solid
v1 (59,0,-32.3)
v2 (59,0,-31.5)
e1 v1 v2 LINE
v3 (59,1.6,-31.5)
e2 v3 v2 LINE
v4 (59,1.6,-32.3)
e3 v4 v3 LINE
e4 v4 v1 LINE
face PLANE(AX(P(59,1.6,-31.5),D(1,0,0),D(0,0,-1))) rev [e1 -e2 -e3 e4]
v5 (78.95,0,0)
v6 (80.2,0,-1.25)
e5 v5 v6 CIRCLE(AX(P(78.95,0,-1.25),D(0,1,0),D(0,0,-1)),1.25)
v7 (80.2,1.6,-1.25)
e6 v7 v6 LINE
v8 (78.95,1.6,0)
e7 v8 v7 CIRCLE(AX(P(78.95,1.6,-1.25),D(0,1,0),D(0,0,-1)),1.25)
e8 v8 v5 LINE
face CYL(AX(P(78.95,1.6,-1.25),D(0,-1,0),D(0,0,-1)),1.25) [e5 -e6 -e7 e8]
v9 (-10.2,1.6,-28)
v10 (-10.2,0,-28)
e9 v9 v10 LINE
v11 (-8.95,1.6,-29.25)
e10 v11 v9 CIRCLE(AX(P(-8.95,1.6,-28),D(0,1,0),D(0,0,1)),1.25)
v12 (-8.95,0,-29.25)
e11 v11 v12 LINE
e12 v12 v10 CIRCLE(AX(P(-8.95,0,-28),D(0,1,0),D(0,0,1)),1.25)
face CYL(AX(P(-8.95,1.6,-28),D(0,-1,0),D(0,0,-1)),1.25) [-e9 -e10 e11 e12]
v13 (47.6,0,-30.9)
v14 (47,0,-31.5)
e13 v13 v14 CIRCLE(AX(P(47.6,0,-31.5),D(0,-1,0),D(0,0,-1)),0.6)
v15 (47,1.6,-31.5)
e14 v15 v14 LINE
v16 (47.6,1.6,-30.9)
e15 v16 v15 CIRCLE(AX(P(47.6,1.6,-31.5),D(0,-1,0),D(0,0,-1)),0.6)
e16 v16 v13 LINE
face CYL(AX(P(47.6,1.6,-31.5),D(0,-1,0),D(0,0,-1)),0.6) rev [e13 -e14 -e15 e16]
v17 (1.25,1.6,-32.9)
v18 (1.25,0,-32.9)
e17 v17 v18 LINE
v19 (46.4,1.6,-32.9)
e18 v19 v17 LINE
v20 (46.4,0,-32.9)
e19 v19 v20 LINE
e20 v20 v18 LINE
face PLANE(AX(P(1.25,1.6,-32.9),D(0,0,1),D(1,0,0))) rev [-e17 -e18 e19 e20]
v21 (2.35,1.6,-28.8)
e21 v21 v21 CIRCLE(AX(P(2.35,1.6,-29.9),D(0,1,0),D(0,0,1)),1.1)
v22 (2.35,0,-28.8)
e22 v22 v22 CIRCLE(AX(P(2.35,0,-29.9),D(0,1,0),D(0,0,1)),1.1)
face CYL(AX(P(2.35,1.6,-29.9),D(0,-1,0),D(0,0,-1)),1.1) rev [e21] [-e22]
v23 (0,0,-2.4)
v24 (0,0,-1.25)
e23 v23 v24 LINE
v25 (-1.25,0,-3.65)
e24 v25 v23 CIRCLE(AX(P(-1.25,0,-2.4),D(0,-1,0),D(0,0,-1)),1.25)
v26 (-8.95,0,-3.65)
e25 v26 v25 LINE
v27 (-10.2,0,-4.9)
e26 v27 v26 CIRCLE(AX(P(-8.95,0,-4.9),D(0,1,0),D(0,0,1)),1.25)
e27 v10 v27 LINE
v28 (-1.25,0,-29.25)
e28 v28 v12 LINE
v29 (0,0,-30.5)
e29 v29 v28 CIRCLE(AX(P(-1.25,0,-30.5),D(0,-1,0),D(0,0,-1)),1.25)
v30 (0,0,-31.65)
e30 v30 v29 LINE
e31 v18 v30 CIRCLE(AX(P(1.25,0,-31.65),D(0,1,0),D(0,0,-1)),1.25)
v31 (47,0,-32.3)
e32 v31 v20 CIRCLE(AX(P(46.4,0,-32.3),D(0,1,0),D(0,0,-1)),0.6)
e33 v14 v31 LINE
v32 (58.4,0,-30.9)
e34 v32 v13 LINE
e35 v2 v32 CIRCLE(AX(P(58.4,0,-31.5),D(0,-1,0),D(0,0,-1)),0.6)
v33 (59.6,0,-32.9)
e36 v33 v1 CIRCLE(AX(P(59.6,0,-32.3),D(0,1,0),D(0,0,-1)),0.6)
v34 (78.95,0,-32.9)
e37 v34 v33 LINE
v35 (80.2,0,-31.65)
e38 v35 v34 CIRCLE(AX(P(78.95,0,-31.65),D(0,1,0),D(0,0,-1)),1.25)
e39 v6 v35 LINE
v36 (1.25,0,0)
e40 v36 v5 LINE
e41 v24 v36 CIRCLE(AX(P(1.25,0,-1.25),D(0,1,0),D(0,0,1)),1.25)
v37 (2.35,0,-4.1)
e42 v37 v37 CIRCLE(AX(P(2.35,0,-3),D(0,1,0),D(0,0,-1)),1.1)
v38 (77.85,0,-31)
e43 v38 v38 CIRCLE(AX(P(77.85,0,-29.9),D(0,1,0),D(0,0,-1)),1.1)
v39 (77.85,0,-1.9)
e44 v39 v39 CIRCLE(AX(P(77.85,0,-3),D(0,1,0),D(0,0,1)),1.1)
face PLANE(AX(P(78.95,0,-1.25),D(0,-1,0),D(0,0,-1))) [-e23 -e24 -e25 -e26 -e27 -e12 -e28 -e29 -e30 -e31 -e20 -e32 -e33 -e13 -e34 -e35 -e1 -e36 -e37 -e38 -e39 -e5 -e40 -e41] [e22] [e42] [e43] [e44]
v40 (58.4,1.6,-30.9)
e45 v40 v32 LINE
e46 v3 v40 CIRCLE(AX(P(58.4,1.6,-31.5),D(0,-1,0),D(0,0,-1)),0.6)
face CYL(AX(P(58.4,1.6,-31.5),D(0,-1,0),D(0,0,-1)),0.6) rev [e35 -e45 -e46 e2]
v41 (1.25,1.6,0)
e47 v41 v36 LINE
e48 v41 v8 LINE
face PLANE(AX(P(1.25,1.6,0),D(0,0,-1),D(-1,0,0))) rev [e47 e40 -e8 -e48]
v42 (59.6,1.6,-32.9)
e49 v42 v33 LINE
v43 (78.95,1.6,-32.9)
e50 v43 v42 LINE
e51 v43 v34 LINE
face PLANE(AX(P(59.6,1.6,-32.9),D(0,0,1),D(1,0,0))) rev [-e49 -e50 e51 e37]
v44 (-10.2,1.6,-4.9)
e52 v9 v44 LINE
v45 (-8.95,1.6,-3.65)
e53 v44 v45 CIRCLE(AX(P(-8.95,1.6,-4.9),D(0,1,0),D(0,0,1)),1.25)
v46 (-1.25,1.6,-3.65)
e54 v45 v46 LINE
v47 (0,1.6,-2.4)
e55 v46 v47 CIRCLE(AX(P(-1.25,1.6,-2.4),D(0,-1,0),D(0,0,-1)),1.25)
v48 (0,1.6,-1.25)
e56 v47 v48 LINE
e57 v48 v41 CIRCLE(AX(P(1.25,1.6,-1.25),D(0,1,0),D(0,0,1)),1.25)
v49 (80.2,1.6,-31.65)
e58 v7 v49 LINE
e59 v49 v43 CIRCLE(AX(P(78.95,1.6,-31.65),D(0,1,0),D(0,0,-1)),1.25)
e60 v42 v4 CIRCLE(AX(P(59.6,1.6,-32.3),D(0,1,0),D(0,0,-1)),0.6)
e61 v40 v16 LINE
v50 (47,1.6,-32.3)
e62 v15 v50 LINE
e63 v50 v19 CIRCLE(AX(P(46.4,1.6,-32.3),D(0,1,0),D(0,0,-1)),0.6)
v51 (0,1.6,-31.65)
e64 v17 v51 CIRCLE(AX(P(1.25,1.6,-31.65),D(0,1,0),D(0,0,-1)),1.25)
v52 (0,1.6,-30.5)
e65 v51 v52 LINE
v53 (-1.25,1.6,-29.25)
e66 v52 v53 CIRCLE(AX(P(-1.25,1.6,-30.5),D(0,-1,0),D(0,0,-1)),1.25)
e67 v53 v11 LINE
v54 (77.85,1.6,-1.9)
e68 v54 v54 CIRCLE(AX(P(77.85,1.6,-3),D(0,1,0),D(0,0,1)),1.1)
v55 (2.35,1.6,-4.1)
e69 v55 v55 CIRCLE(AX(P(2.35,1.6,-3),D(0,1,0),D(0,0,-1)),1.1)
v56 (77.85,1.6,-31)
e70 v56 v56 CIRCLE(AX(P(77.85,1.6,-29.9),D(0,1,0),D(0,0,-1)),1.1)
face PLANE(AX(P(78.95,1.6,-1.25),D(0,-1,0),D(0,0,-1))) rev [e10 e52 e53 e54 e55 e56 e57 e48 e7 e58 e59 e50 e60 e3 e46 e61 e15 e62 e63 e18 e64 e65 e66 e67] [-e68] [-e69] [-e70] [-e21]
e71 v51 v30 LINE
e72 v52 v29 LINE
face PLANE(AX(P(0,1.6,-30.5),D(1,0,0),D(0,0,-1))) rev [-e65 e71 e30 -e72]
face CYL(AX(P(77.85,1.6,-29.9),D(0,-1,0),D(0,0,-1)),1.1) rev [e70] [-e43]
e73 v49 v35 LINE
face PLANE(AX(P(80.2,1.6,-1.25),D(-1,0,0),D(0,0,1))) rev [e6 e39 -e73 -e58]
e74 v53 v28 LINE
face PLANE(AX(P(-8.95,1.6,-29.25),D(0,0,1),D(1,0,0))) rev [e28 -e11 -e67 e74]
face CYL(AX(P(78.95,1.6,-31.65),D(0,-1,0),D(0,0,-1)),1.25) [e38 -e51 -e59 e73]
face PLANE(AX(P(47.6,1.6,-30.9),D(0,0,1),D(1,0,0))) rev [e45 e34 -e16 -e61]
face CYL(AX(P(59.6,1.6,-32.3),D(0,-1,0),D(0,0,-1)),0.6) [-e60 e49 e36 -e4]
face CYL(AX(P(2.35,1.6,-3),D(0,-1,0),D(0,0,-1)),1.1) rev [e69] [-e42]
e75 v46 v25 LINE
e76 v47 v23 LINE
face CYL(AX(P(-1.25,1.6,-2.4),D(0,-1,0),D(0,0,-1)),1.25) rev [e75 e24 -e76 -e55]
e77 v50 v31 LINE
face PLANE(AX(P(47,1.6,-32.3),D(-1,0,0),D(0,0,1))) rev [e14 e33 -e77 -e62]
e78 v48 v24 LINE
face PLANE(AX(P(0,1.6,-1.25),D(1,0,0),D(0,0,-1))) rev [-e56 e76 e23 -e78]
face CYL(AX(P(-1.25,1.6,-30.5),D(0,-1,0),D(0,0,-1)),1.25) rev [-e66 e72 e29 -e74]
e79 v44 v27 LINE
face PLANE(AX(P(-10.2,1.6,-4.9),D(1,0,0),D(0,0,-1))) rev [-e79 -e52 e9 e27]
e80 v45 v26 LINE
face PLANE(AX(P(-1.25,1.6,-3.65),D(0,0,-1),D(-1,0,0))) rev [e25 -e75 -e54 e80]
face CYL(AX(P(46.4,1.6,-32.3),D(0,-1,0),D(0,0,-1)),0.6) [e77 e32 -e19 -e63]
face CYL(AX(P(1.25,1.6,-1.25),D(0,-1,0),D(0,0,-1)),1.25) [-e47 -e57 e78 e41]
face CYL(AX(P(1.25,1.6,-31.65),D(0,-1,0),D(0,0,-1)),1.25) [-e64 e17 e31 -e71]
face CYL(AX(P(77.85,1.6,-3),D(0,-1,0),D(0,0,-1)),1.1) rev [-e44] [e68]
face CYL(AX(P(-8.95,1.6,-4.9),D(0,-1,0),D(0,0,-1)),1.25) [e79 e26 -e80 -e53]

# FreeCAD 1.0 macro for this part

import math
import FreeCAD as App
import Part
import Sketcher
Q = App.Units.Quantity

doc = App.newDocument("Part")
body = doc.addObject("PartDesign::Body", "Body")

sketch1 = body.newObject("Sketcher::SketchObject", "Sketch")
sketch1.AttachmentSupport = (doc.getObject("XZ_Plane"), [""])
sketch1.MapMode = "FlatFace"
sketch1.addGeometry(Part.ArcOfCircle(Part.Circle(App.Vector(1.25, -1.25, 0), App.Vector(0, 0, 1), 1.25), math.radians(90), math.radians(180)), False)
sketch1.addGeometry(Part.LineSegment(App.Vector(1.25, 0, 0), App.Vector(78.95, 0, 0)), False)
sketch1.addGeometry(Part.ArcOfCircle(Part.Circle(App.Vector(78.95, -1.25, 0), App.Vector(0, 0, 1), 1.25), math.radians(0), math.radians(90)), False)
sketch1.addGeometry(Part.LineSegment(App.Vector(80.2, -1.25, 0), App.Vector(80.2, -31.65, 0)), False)
sketch1.addGeometry(Part.ArcOfCircle(Part.Circle(App.Vector(78.95, -31.65, 0), App.Vector(0, 0, 1), 1.25), math.radians(-90), math.radians(0)), False)
sketch1.addGeometry(Part.LineSegment(App.Vector(78.95, -32.9, 0), App.Vector(59.6, -32.9, 0)), False)
sketch1.addGeometry(Part.ArcOfCircle(Part.Circle(App.Vector(59.6, -32.3, 0), App.Vector(0, 0, 1), 0.6), math.radians(180), math.radians(270)), False)
sketch1.addGeometry(Part.LineSegment(App.Vector(59, -32.3, 0), App.Vector(59, -31.5, 0)), False)
sketch1.addGeometry(Part.ArcOfCircle(Part.Circle(App.Vector(58.4, -31.5, 0), App.Vector(0, 0, 1), 0.6), math.radians(0), math.radians(90)), False)
sketch1.addGeometry(Part.LineSegment(App.Vector(58.4, -30.9, 0), App.Vector(47.6, -30.9, 0)), False)
sketch1.addGeometry(Part.ArcOfCircle(Part.Circle(App.Vector(47.6, -31.5, 0), App.Vector(0, 0, 1), 0.6), math.radians(90), math.radians(180)), False)
sketch1.addGeometry(Part.LineSegment(App.Vector(47, -31.5, 0), App.Vector(47, -32.3, 0)), False)
sketch1.addGeometry(Part.ArcOfCircle(Part.Circle(App.Vector(46.4, -32.3, 0), App.Vector(0, 0, 1), 0.6), math.radians(-90), math.radians(0)), False)
sketch1.addGeometry(Part.LineSegment(App.Vector(46.4, -32.9, 0), App.Vector(1.25, -32.9, 0)), False)
sketch1.addGeometry(Part.ArcOfCircle(Part.Circle(App.Vector(1.25, -31.65, 0), App.Vector(0, 0, 1), 1.25), math.radians(-180), math.radians(-90)), False)
sketch1.addGeometry(Part.LineSegment(App.Vector(0, -31.65, 0), App.Vector(0, -30.5, 0)), False)
sketch1.addGeometry(Part.ArcOfCircle(Part.Circle(App.Vector(-1.25, -30.5, 0), App.Vector(0, 0, 1), 1.25), math.radians(0), math.radians(90)), False)
sketch1.addGeometry(Part.LineSegment(App.Vector(-1.25, -29.25, 0), App.Vector(-8.95, -29.25, 0)), False)
sketch1.addGeometry(Part.ArcOfCircle(Part.Circle(App.Vector(-8.95, -28, 0), App.Vector(0, 0, 1), 1.25), math.radians(-180), math.radians(-90)), False)
sketch1.addGeometry(Part.LineSegment(App.Vector(-10.2, -28, 0), App.Vector(-10.2, -4.9, 0)), False)
sketch1.addGeometry(Part.ArcOfCircle(Part.Circle(App.Vector(-8.95, -4.9, 0), App.Vector(0, 0, 1), 1.25), math.radians(90), math.radians(180)), False)
sketch1.addGeometry(Part.LineSegment(App.Vector(-8.95, -3.65, 0), App.Vector(-1.25, -3.65, 0)), False)
sketch1.addGeometry(Part.ArcOfCircle(Part.Circle(App.Vector(-1.25, -2.4, 0), App.Vector(0, 0, 1), 1.25), math.radians(-90), math.radians(0)), False)
sketch1.addGeometry(Part.LineSegment(App.Vector(0, -2.4, 0), App.Vector(0, -1.25, 0)), False)
sketch1.addGeometry(Part.Circle(App.Vector(2.35, -3, 0), App.Vector(0, 0, 1), 1.1), False)
sketch1.addGeometry(Part.Circle(App.Vector(77.85, -3, 0), App.Vector(0, 0, 1), 1.1), False)
sketch1.addGeometry(Part.Circle(App.Vector(2.35, -29.9, 0), App.Vector(0, 0, 1), 1.1), False)
sketch1.addGeometry(Part.Circle(App.Vector(77.85, -29.9, 0), App.Vector(0, 0, 1), 1.1), False)
sketch1.addConstraint(Sketcher.Constraint("Tangent", 0, 1, 1, 1))
sketch1.addConstraint(Sketcher.Constraint("Tangent", 1, 2, 2, 2))
sketch1.addConstraint(Sketcher.Constraint("Tangent", 2, 1, 3, 1))
sketch1.addConstraint(Sketcher.Constraint("Tangent", 3, 2, 4, 2))
sketch1.addConstraint(Sketcher.Constraint("Tangent", 4, 1, 5, 1))
sketch1.addConstraint(Sketcher.Constraint("Tangent", 5, 2, 6, 2))
sketch1.addConstraint(Sketcher.Constraint("Tangent", 6, 1, 7, 1))
sketch1.addConstraint(Sketcher.Constraint("Tangent", 7, 2, 8, 1))
sketch1.addConstraint(Sketcher.Constraint("Tangent", 8, 2, 9, 1))
sketch1.addConstraint(Sketcher.Constraint("Tangent", 9, 2, 10, 1))
sketch1.addConstraint(Sketcher.Constraint("Tangent", 10, 2, 11, 1))
sketch1.addConstraint(Sketcher.Constraint("Tangent", 11, 2, 12, 2))
sketch1.addConstraint(Sketcher.Constraint("Tangent", 12, 1, 13, 1))
sketch1.addConstraint(Sketcher.Constraint("Tangent", 13, 2, 14, 2))
sketch1.addConstraint(Sketcher.Constraint("Tangent", 14, 1, 15, 1))
sketch1.addConstraint(Sketcher.Constraint("Tangent", 15, 2, 16, 1))
sketch1.addConstraint(Sketcher.Constraint("Tangent", 16, 2, 17, 1))
sketch1.addConstraint(Sketcher.Constraint("Tangent", 17, 2, 18, 2))
sketch1.addConstraint(Sketcher.Constraint("Tangent", 18, 1, 19, 1))
sketch1.addConstraint(Sketcher.Constraint("Tangent", 19, 2, 20, 2))
sketch1.addConstraint(Sketcher.Constraint("Tangent", 20, 1, 21, 1))
sketch1.addConstraint(Sketcher.Constraint("Tangent", 21, 2, 22, 1))
sketch1.addConstraint(Sketcher.Constraint("Tangent", 22, 2, 23, 1))
sketch1.addConstraint(Sketcher.Constraint("Tangent", 23, 2, 0, 2))
sketch1.addConstraint(Sketcher.Constraint("Horizontal", 1))
sketch1.addConstraint(Sketcher.Constraint("Vertical", 3))
sketch1.addConstraint(Sketcher.Constraint("Horizontal", 5))
sketch1.addConstraint(Sketcher.Constraint("Vertical", 7))
sketch1.addConstraint(Sketcher.Constraint("Horizontal", 9))
sketch1.addConstraint(Sketcher.Constraint("Vertical", 11))
sketch1.addConstraint(Sketcher.Constraint("Horizontal", 13))
sketch1.addConstraint(Sketcher.Constraint("Vertical", 15))
sketch1.addConstraint(Sketcher.Constraint("Horizontal", 17))
sketch1.addConstraint(Sketcher.Constraint("Vertical", 19))
sketch1.addConstraint(Sketcher.Constraint("Horizontal", 21))
sketch1.addConstraint(Sketcher.Constraint("Vertical", 23))
sketch1.addConstraint(Sketcher.Constraint("Equal", 0, 2))
sketch1.addConstraint(Sketcher.Constraint("Equal", 2, 4))
sketch1.addConstraint(Sketcher.Constraint("Equal", 6, 8))
sketch1.addConstraint(Sketcher.Constraint("Equal", 8, 10))
sketch1.addConstraint(Sketcher.Constraint("Equal", 10, 12))
sketch1.addConstraint(Sketcher.Constraint("Equal", 4, 14))
sketch1.addConstraint(Sketcher.Constraint("Equal", 14, 16))
sketch1.addConstraint(Sketcher.Constraint("Equal", 16, 18))
sketch1.addConstraint(Sketcher.Constraint("Equal", 18, 20))
sketch1.addConstraint(Sketcher.Constraint("Equal", 20, 22))
sketch1.addConstraint(Sketcher.Constraint("Equal", 24, 25))
sketch1.addConstraint(Sketcher.Constraint("Equal", 25, 26))
sketch1.addConstraint(Sketcher.Constraint("Equal", 26, 27))
sketch1.addConstraint(Sketcher.Constraint("PointOnObject", 0, 1, -1))
sketch1.addConstraint(Sketcher.Constraint("PointOnObject", 14, 1, -2))
sketch1.addConstraint(Sketcher.Constraint("PointOnObject", 22, 2, -2))
sketch1.addConstraint(Sketcher.Constraint("Horizontal", 6, 3, 12, 3))
sketch1.addConstraint(Sketcher.Constraint("Horizontal", 24, 3, 25, 3))
sketch1.addConstraint(Sketcher.Constraint("Horizontal", 26, 3, 27, 3))
sketch1.addConstraint(Sketcher.Constraint("Vertical", 24, 3, 26, 3))
sketch1.addConstraint(Sketcher.Constraint("Vertical", 25, 3, 27, 3))
sketch1.addConstraint(Sketcher.Constraint("Equal", 15, 23))
sketch1.addConstraint(Sketcher.Constraint("Diameter", 24, Q("2.2 mm")))
sketch1.addConstraint(Sketcher.Constraint("Radius", 6, Q("0.6 mm")))
sketch1.addConstraint(Sketcher.Constraint("Radius", 0, Q("1.25 mm")))
sketch1.addConstraint(Sketcher.Constraint("DistanceX", 1, 1, 1, 2, Q("77.7 mm")))
sketch1.addConstraint(Sketcher.Constraint("DistanceX", 9, 2, 9, 1, Q("10.8 mm")))
sketch1.addConstraint(Sketcher.Constraint("DistanceX", 17, 2, 17, 1, Q("7.7 mm")))
sketch1.addConstraint(Sketcher.Constraint("DistanceY", 3, 2, 3, 1, Q("30.4 mm")))
sketch1.addConstraint(Sketcher.Constraint("DistanceY", 7, 1, 7, 2, Q("0.8 mm")))
sketch1.addConstraint(Sketcher.Constraint("DistanceY", 19, 1, 19, 2, Q("23.1 mm")))
sketch1.addConstraint(Sketcher.Constraint("DistanceY", 24, 3, -1, 1, Q("3 mm")))
sketch1.addConstraint(Sketcher.Constraint("DistanceX", -1, 1, 6, 1, Q("59 mm")))
sketch1.addConstraint(Sketcher.Constraint("DistanceY", 26, 3, 20, 3, Q("25 mm")))
sketch1.addConstraint(Sketcher.Constraint("DistanceX", 0, 3, 24, 3, Q("1.1 mm")))
sketch1.addConstraint(Sketcher.Constraint("DistanceX", 25, 3, 2, 3, Q("1.1 mm")))
pad1 = body.newObject("PartDesign::Pad", "Pad")
pad1.Profile = sketch1
pad1.Length = 1.6
pad1.Reversed = True

doc.recompute()
